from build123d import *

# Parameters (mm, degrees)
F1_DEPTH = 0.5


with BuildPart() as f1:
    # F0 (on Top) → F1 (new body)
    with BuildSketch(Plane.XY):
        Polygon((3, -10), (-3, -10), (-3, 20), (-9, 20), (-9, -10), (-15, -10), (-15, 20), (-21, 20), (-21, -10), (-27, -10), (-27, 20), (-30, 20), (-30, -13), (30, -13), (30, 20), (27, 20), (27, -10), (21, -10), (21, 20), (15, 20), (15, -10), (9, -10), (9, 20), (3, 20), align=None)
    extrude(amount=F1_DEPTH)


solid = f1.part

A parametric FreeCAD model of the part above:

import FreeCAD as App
import Part
import Sketcher
from FreeCAD import Vector


def add_polygon(sketch, points):
    """Adds a closed chain of lines whose ends are joined by coincident constraints."""
    first, n = sketch.GeometryCount, len(points)
    for a, b in zip(points, points[1:] + points[:1]):
        sketch.addGeometry(Part.LineSegment(App.Vector(*a, 0), App.Vector(*b, 0)), False)
    for i in range(n):
        sketch.addConstraint(Sketcher.Constraint("Coincident", first + i, 2, first + (i + 1) % n, 1))

doc = App.newDocument("Part")
body = doc.addObject("PartDesign::Body", "Body")

# Sketch on XY plane
sketch1 = body.newObject("Sketcher::SketchObject", "Sketch")
sketch1.AttachmentSupport = (doc.getObject("XY_Plane"), [""])
sketch1.MapMode = "FlatFace"
add_polygon(sketch1, [(3, -10), (-3, -10), (-3, 20), (-9, 20), (-9, -10), (-15, -10), (-15, 20), (-21, 20), (-21, -10), (-27, -10), (-27, 20), (-30, 20), (-30, -13), (30, -13), (30, 20), (27, 20), (27, -10), (21, -10), (21, 20), (15, 20), (15, -10), (9, -10), (9, 20), (3, 20)])  # lines 0-23
sketch1.addConstraint([
    Sketcher.Constraint("Horizontal", 0),
    Sketcher.Constraint("Vertical", 1),
    Sketcher.Constraint("Horizontal", 2),
    Sketcher.Constraint("Vertical", 3),
    Sketcher.Constraint("Horizontal", 4),
    Sketcher.Constraint("Vertical", 5),
    Sketcher.Constraint("Horizontal", 6),
    Sketcher.Constraint("Vertical", 7),
    Sketcher.Constraint("Horizontal", 8),
    Sketcher.Constraint("Vertical", 9),
    Sketcher.Constraint("Horizontal", 10),
    Sketcher.Constraint("Vertical", 11),
    Sketcher.Constraint("Horizontal", 12),
    Sketcher.Constraint("Vertical", 13),
    Sketcher.Constraint("Horizontal", 14),
    Sketcher.Constraint("Vertical", 15),
    Sketcher.Constraint("Horizontal", 16),
    Sketcher.Constraint("Vertical", 17),
    Sketcher.Constraint("Horizontal", 18),
    Sketcher.Constraint("Vertical", 19),
    Sketcher.Constraint("Horizontal", 20),
    Sketcher.Constraint("Vertical", 21),
    Sketcher.Constraint("Horizontal", 22),
    Sketcher.Constraint("Vertical", 23),
    Sketcher.Constraint("Symmetric", 10, 2, 13, 2, -2),
    Sketcher.Constraint("Symmetric", 8, 2, 15, 2, -2),
    Sketcher.Constraint("Symmetric", 6, 2, 17, 2, -2),
    Sketcher.Constraint("Symmetric", 4, 2, 19, 2, -2),
    Sketcher.Constraint("Symmetric", 2, 2, 21, 2, -2),
    Sketcher.Constraint("Horizontal", 0, 2, 3, 2),
    Sketcher.Constraint("Horizontal", 2, 2, 5, 2),
    Sketcher.Constraint("Horizontal", 4, 2, 7, 2),
    Sketcher.Constraint("Horizontal", 6, 2, 9, 2),
    Sketcher.Constraint("Equal", 0, 2),
    Sketcher.Constraint("Equal", 2, 4),
    Sketcher.Constraint("Equal", 4, 6),
    Sketcher.Constraint("Equal", 6, 8),
    Sketcher.Constraint("Equal", 20, 22),
    Sketcher.Constraint("DistanceX", 0, 2, 0, 1, 6.0),
    Sketcher.Constraint("DistanceX", 10, 2, 10, 1, 3.0),
    Sketcher.Constraint("DistanceY", 1, 1, 1, 2, 30.0),
    Sketcher.Constraint("DistanceY", 11, 2, 11, 1, 33.0),
    Sketcher.Constraint("DistanceY", 0, 2, -1, 1, 10.0),
])
pad1 = body.newObject("PartDesign::Pad", "Pad")
pad1.Profile = sketch1
pad1.Length = 0.5

doc.recompute()
